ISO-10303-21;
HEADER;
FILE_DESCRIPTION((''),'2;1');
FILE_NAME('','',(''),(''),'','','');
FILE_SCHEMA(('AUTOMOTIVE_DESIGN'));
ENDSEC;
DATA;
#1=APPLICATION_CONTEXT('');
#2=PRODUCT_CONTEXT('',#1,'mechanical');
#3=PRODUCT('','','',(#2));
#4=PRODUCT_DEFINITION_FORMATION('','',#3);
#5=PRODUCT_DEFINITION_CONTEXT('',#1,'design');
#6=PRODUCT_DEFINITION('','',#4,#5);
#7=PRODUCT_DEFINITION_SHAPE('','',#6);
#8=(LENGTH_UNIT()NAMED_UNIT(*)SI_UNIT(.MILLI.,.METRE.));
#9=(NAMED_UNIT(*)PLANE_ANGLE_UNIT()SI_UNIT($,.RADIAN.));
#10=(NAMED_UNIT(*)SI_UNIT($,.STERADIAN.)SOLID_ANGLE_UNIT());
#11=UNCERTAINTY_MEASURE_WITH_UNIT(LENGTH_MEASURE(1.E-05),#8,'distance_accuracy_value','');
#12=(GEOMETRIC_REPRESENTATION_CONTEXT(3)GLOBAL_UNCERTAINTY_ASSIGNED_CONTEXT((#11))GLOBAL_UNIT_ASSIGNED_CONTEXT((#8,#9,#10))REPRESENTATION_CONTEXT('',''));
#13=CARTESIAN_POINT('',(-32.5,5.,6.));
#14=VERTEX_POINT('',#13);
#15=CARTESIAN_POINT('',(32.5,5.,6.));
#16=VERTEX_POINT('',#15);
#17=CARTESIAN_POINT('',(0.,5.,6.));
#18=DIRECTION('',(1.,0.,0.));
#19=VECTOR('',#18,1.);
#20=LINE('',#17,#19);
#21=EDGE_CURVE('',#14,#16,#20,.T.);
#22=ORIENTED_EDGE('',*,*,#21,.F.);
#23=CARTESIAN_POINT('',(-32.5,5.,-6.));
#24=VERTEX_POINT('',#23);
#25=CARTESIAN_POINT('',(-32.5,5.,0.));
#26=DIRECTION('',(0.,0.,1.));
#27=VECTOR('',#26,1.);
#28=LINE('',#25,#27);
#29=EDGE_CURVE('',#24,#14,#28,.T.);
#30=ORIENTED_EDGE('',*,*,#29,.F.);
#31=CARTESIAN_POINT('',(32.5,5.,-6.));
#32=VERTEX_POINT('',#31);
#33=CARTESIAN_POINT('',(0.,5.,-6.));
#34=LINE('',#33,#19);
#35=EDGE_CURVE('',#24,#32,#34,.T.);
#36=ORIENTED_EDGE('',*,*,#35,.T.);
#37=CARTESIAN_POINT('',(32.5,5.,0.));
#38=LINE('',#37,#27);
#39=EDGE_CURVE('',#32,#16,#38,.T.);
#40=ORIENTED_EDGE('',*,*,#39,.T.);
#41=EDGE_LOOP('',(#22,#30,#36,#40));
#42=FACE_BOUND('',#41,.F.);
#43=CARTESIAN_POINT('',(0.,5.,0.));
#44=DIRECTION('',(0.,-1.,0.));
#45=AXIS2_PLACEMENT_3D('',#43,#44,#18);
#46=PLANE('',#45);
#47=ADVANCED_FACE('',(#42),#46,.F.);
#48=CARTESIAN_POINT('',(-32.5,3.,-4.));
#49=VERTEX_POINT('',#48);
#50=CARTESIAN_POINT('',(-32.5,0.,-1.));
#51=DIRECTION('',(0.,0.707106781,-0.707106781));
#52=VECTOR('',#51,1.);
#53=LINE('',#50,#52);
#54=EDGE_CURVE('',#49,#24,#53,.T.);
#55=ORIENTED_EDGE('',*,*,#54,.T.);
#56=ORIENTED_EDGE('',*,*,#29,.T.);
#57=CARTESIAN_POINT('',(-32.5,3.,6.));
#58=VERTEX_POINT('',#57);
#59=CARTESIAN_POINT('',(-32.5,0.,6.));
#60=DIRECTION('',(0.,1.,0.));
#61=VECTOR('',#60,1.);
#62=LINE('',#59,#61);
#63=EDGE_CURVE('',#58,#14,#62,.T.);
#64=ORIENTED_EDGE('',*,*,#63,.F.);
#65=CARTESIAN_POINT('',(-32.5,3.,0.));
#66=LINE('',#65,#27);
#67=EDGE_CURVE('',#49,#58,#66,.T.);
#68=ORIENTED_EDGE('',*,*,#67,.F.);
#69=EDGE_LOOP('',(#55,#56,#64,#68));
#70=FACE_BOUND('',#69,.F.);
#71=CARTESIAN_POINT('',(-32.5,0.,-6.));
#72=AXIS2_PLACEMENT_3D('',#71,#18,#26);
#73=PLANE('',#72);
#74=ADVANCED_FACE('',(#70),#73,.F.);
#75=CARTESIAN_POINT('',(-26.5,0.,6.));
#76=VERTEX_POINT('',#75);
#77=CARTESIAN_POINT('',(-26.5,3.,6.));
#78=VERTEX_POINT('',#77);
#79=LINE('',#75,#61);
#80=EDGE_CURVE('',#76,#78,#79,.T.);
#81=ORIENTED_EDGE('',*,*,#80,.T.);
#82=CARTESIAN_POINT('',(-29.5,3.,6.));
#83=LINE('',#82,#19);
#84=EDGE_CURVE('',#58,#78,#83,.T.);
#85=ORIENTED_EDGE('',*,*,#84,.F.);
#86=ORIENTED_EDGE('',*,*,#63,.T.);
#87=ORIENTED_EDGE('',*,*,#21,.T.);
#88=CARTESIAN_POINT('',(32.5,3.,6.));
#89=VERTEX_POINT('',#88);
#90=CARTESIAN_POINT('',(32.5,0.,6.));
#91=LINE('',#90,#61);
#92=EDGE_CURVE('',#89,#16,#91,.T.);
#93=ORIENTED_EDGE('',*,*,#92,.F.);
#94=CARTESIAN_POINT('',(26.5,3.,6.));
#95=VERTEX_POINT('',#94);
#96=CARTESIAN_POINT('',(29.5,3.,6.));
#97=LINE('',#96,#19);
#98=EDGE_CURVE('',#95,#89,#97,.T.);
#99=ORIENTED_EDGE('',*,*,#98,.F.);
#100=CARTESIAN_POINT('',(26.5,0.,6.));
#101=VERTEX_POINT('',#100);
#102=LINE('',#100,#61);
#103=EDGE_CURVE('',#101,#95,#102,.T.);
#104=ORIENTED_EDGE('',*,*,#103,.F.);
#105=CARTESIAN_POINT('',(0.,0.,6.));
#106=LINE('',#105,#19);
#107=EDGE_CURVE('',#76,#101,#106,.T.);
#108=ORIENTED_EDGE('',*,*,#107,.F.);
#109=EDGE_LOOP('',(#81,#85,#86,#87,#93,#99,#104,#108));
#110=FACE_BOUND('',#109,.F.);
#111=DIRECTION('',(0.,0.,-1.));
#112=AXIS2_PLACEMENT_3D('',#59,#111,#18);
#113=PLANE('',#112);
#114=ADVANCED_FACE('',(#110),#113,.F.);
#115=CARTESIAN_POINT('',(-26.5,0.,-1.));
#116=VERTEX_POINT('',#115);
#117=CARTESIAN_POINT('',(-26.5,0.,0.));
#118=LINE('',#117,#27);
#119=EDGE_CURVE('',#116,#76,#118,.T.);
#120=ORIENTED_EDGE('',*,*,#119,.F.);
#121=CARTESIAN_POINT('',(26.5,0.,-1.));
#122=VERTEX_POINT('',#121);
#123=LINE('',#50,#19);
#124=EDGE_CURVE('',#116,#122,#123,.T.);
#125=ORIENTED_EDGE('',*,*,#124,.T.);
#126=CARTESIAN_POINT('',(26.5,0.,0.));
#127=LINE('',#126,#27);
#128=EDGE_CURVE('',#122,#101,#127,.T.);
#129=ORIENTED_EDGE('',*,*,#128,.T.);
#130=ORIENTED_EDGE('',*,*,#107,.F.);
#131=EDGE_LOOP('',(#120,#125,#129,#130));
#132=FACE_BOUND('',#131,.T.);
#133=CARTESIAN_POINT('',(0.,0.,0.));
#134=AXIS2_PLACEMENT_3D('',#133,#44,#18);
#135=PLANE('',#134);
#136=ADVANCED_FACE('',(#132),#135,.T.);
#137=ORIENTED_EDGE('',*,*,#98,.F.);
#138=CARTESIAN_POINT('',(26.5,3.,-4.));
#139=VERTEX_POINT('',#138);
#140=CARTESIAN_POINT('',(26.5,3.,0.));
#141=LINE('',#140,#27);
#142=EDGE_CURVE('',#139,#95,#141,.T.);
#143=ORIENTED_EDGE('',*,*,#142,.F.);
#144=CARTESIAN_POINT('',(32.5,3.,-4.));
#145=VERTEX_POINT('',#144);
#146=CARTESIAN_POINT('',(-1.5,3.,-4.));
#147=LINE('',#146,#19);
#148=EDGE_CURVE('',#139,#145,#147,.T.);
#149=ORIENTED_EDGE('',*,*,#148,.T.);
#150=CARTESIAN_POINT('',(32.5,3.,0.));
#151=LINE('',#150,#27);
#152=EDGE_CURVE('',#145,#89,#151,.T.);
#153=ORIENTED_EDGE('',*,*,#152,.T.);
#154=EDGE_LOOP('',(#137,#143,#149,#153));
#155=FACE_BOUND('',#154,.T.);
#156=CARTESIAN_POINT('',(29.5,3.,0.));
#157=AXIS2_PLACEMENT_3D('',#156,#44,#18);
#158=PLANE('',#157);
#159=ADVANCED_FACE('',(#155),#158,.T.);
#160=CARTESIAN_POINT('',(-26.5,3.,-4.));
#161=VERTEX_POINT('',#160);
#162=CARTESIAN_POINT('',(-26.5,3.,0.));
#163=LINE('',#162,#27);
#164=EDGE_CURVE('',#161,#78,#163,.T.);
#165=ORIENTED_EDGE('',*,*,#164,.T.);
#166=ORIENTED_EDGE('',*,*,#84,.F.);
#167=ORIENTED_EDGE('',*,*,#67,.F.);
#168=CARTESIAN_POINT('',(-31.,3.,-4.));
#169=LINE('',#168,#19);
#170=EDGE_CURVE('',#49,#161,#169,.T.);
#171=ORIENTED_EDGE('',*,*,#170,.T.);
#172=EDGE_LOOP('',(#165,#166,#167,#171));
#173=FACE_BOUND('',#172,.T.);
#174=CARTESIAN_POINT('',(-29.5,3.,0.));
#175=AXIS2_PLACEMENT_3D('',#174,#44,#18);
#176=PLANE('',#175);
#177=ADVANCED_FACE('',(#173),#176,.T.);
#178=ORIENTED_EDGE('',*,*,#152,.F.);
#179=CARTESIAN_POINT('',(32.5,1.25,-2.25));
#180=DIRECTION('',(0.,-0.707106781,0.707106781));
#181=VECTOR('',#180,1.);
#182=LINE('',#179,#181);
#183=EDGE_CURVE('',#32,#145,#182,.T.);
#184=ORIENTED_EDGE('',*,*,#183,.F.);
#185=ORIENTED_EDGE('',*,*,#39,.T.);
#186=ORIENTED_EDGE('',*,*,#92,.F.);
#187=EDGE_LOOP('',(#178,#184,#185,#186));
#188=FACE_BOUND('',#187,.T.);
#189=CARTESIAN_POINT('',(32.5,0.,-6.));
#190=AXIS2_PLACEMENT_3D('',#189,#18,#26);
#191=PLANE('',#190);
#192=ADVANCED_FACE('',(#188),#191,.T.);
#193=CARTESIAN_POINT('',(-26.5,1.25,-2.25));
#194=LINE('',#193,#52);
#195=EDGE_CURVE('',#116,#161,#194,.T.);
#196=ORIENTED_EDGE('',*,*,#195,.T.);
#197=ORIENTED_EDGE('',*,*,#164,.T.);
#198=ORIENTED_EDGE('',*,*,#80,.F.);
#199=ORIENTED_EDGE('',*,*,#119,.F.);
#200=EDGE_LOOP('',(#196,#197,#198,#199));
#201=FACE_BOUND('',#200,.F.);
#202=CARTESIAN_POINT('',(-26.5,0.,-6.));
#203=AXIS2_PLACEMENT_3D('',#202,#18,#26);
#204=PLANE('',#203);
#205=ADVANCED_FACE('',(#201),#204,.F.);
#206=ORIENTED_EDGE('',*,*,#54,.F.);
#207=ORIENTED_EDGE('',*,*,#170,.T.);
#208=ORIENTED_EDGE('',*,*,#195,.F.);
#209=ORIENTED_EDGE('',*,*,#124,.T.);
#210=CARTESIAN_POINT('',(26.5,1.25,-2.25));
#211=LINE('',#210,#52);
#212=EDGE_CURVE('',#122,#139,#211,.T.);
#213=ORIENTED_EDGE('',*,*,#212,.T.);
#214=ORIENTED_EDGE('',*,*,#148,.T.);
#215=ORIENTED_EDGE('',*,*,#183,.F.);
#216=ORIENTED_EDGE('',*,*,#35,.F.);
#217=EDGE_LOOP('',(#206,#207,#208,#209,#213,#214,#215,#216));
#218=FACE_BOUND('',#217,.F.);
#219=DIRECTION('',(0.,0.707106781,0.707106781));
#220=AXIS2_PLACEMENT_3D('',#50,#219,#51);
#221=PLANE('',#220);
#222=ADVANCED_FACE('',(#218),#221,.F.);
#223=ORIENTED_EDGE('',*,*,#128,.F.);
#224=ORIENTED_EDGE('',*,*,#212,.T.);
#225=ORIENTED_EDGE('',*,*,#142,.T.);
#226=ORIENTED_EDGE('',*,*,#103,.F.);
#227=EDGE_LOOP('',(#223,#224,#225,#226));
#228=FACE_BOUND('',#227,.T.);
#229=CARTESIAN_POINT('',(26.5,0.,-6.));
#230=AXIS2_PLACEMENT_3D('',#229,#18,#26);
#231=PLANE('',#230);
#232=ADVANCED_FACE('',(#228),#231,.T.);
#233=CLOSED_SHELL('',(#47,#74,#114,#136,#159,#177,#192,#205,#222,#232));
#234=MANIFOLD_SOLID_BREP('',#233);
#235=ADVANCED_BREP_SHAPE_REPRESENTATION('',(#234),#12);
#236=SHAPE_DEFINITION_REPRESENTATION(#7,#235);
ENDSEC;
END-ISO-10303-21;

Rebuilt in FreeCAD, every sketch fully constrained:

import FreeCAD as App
import Part
import Sketcher

V = App.Vector

doc = App.newDocument("Part")
body = doc.addObject("PartDesign::Body", "Body")

sketch1 = body.newObject("Sketcher::SketchObject", "Sketch")
sketch1.AttachmentSupport = (doc.getObject("XZ_Plane"), [""])
sketch1.MapMode = "FlatFace"
sketch1.addGeometry([
    Part.LineSegment(V(-32, 6, 0), V(-32, -6, 0)),
    Part.LineSegment(V(-32, -6, 0), V(32, -6, 0)),
    Part.LineSegment(V(32, -6, 0), V(32, 6, 0)),
    Part.LineSegment(V(32, 6, 0), V(-32, 6, 0)),
], False)
sketch1.addConstraint([
    Sketcher.Constraint("Coincident", 0, 2, 1, 1),
    Sketcher.Constraint("Coincident", 1, 2, 2, 1),
    Sketcher.Constraint("Coincident", 2, 2, 3, 1),
    Sketcher.Constraint("Coincident", 3, 2, 0, 1),
    Sketcher.Constraint("Vertical", 0),
    Sketcher.Constraint("Horizontal", 1),
    Sketcher.Constraint("Vertical", 2),
    Sketcher.Constraint("Horizontal", 3),
    Sketcher.Constraint("Symmetric", 0, 2, 2, 2, -1, 1),
    Sketcher.Constraint("DistanceX", 1, 1, 1, 2, 65.0),
    Sketcher.Constraint("DistanceY", 0, 2, 0, 1, 12.0),
])
pad1 = body.newObject("PartDesign::Pad", "Pad")
pad1.Profile = sketch1
pad1.Length = 5
pad1.Reversed = True

sketch2 = body.newObject("Sketcher::SketchObject", "Sketch001")
sketch2.AttachmentSupport = (doc.getObject("YZ_Plane"), [""])
sketch2.MapMode = "FlatFace"
sketch2.AttachmentOffset = App.Placement(V(0, 0, -32.5), App.Rotation())
sketch2.addGeometry([
    Part.LineSegment(V(0, -6, 0), V(0, -1, 0)),
    Part.LineSegment(V(0, -1, 0), V(5, -6, 0)),
    Part.LineSegment(V(5, -6, 0), V(0, -6, 0)),
], False)
sketch2.addConstraint([
    Sketcher.Constraint("Coincident", 0, 2, 1, 1),
    Sketcher.Constraint("Coincident", 1, 2, 2, 1),
    Sketcher.Constraint("Coincident", 2, 2, 0, 1),
    Sketcher.Constraint("Vertical", 0),
    Sketcher.Constraint("Horizontal", 2),
    Sketcher.Constraint("PointOnObject", 0, 2, -2),
    Sketcher.Constraint("Equal", 2, 0),
    Sketcher.Constraint("DistanceX", 2, 2, 2, 1, 5.0),
    Sketcher.Constraint("DistanceY", 0, 2, -1, 1, 1.0),
])
pocket1 = body.newObject("PartDesign::Pocket", "Pocket")
pocket1.Profile = sketch2
pocket1.Type = "ThroughAll"
pocket1.Reversed = True

sketch3 = body.newObject("Sketcher::SketchObject", "Sketch002")
sketch3.AttachmentSupport = (doc.getObject("XZ_Plane"), [""])
sketch3.MapMode = "FlatFace"
sketch3.addGeometry([
    Part.LineSegment(V(26, 6, 0), V(26, -6, 0)),
    Part.LineSegment(V(26, -6, 0), V(32, -6, 0)),
    Part.LineSegment(V(32, -6, 0), V(32, 6, 0)),
    Part.LineSegment(V(32, 6, 0), V(26, 6, 0)),
    Part.LineSegment(V(-32, 6, 0), V(-32, -6, 0)),
    Part.LineSegment(V(-32, -6, 0), V(-26, -6, 0)),
    Part.LineSegment(V(-26, -6, 0), V(-26, 6, 0)),
    Part.LineSegment(V(-26, 6, 0), V(-32, 6, 0)),
], False)
sketch3.addConstraint([
    Sketcher.Constraint("Coincident", 0, 2, 1, 1),
    Sketcher.Constraint("Coincident", 1, 2, 2, 1),
    Sketcher.Constraint("Coincident", 2, 2, 3, 1),
    Sketcher.Constraint("Coincident", 3, 2, 0, 1),
    Sketcher.Constraint("Coincident", 4, 2, 5, 1),
    Sketcher.Constraint("Coincident", 5, 2, 6, 1),
    Sketcher.Constraint("Coincident", 6, 2, 7, 1),
    Sketcher.Constraint("Coincident", 7, 2, 4, 1),
    Sketcher.Constraint("Vertical", 0),
    Sketcher.Constraint("Horizontal", 1),
    Sketcher.Constraint("Vertical", 2),
    Sketcher.Constraint("Horizontal", 3),
    Sketcher.Constraint("Vertical", 4),
    Sketcher.Constraint("Horizontal", 5),
    Sketcher.Constraint("Vertical", 6),
    Sketcher.Constraint("Horizontal", 7),
    Sketcher.Constraint("Symmetric", 2, 2, 4, 2, -1, 1),
    Sketcher.Constraint("Symmetric", 0, 2, 6, 2, -1, 1),
    Sketcher.Constraint("Horizontal", 1, 2, 4, 2),
    Sketcher.Constraint("DistanceX", 1, 1, 1, 2, 6.0),
    Sketcher.Constraint("DistanceY", 0, 2, 0, 1, 12.0),
    Sketcher.Constraint("DistanceX", 4, 2, 0, 2, 59.0),
])
pocket2 = body.newObject("PartDesign::Pocket", "Pocket001")
pocket2.Profile = sketch3
pocket2.Length = 3

doc.recompute()
